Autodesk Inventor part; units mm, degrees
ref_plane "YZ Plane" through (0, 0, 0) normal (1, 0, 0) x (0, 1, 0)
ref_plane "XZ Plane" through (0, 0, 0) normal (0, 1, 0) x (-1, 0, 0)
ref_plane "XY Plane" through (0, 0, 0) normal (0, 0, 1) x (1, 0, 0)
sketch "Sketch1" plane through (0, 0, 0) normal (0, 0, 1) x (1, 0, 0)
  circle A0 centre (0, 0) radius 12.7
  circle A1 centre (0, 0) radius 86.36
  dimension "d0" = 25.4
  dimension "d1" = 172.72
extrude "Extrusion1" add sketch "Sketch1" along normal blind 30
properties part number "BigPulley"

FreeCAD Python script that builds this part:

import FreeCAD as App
import Part
import Sketcher
from FreeCAD import Vector
Q = App.Units.Quantity

doc = App.newDocument("Part")
body = doc.addObject("PartDesign::Body", "Body")

sketch1 = body.newObject("Sketcher::SketchObject", "Sketch")
sketch1.AttachmentSupport = (doc.getObject("XY_Plane"), [""])
sketch1.MapMode = "FlatFace"
sketch1.addGeometry(Part.Circle(Vector(0, 0, 0), Vector(0, 0, 1), 86), False)
sketch1.addGeometry(Part.Circle(Vector(0, 0, 0), Vector(0, 0, 1), 13), False)
sketch1.addConstraint(Sketcher.Constraint("Coincident", 0, 3, -1, 1))
sketch1.addConstraint(Sketcher.Constraint("Coincident", 1, 3, -1, 1))
sketch1.addConstraint(Sketcher.Constraint("Diameter", 1, Q("1 in")))
sketch1.addConstraint(Sketcher.Constraint("Diameter", 0, Q("6.8 in")))
pad1 = body.newObject("PartDesign::Pad", "Pad")
pad1.Profile = sketch1
pad1.Length = Q("1.1811024 in")

doc.recompute()
